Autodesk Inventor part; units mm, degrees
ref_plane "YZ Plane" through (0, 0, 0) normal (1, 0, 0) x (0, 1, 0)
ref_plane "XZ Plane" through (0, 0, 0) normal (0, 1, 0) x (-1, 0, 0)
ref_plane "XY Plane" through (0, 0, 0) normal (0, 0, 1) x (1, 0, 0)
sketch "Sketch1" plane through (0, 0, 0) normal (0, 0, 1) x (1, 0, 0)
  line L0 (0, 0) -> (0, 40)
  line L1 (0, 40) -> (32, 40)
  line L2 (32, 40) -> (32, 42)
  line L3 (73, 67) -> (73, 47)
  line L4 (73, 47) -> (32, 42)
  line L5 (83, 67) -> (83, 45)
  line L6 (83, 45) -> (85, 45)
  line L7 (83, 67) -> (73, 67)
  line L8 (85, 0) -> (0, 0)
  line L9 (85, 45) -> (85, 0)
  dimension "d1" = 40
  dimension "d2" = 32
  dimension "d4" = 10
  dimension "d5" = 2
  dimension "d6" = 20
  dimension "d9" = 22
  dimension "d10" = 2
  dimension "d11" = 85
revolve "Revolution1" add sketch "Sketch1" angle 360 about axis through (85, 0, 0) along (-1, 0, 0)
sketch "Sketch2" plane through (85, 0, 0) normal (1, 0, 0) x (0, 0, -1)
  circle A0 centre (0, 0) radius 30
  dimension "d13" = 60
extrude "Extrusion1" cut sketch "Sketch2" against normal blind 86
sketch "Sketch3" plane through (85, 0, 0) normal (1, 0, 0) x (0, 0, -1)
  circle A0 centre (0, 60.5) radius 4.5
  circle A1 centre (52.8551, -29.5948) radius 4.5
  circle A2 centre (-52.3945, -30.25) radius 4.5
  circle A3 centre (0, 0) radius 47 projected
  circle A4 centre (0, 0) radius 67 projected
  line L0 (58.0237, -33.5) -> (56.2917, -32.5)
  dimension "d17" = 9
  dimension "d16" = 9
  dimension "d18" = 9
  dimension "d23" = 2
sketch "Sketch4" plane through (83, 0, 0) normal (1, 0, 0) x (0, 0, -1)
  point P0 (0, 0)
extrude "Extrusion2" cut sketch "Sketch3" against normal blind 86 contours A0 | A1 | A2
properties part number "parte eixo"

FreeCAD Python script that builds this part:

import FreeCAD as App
import Part
import Sketcher

doc = App.newDocument("Part")
body = doc.addObject("PartDesign::Body", "Body")

# Sketch on XY plane
sketch1 = body.newObject("Sketcher::SketchObject", "Sketch")
sketch1.AttachmentSupport = (doc.getObject("XY_Plane"), [""])
sketch1.MapMode = "FlatFace"
sketch1.addGeometry(Part.LineSegment(App.Vector(0, 40, 0), App.Vector(0, 0, 0)), False)
sketch1.addGeometry(Part.LineSegment(App.Vector(0, 0, 0), App.Vector(85, 0, 0)), False)
sketch1.addGeometry(Part.LineSegment(App.Vector(85, 0, 0), App.Vector(85, 45, 0)), False)
sketch1.addGeometry(Part.LineSegment(App.Vector(85, 45, 0), App.Vector(83, 45, 0)), False)
sketch1.addGeometry(Part.LineSegment(App.Vector(83, 45, 0), App.Vector(83, 67, 0)), False)
sketch1.addGeometry(Part.LineSegment(App.Vector(83, 67, 0), App.Vector(73, 67, 0)), False)
sketch1.addGeometry(Part.LineSegment(App.Vector(73, 67, 0), App.Vector(73, 47, 0)), False)
sketch1.addGeometry(Part.LineSegment(App.Vector(73, 47, 0), App.Vector(32, 42, 0)), False)
sketch1.addGeometry(Part.LineSegment(App.Vector(32, 42, 0), App.Vector(32, 40, 0)), False)
sketch1.addGeometry(Part.LineSegment(App.Vector(32, 40, 0), App.Vector(0, 40, 0)), False)
sketch1.addConstraint(Sketcher.Constraint("Coincident", 0, 2, 1, 1))
sketch1.addConstraint(Sketcher.Constraint("Coincident", 1, 2, 2, 1))
sketch1.addConstraint(Sketcher.Constraint("Coincident", 2, 2, 3, 1))
sketch1.addConstraint(Sketcher.Constraint("Coincident", 3, 2, 4, 1))
sketch1.addConstraint(Sketcher.Constraint("Coincident", 4, 2, 5, 1))
sketch1.addConstraint(Sketcher.Constraint("Coincident", 5, 2, 6, 1))
sketch1.addConstraint(Sketcher.Constraint("Coincident", 6, 2, 7, 1))
sketch1.addConstraint(Sketcher.Constraint("Coincident", 7, 2, 8, 1))
sketch1.addConstraint(Sketcher.Constraint("Coincident", 8, 2, 9, 1))
sketch1.addConstraint(Sketcher.Constraint("Coincident", 9, 2, 0, 1))
sketch1.addConstraint(Sketcher.Constraint("Vertical", 0))
sketch1.addConstraint(Sketcher.Constraint("Horizontal", 1))
sketch1.addConstraint(Sketcher.Constraint("Vertical", 2))
sketch1.addConstraint(Sketcher.Constraint("Horizontal", 3))
sketch1.addConstraint(Sketcher.Constraint("Vertical", 4))
sketch1.addConstraint(Sketcher.Constraint("Horizontal", 5))
sketch1.addConstraint(Sketcher.Constraint("Vertical", 6))
sketch1.addConstraint(Sketcher.Constraint("Vertical", 8))
sketch1.addConstraint(Sketcher.Constraint("Horizontal", 9))
sketch1.addConstraint(Sketcher.Constraint("Coincident", 0, 2, -1, 1))
sketch1.addConstraint(Sketcher.Constraint("Equal", 3, 8))
sketch1.addConstraint(Sketcher.Constraint("DistanceX", 1, 1, 1, 2, 85.0))
sketch1.addConstraint(Sketcher.Constraint("DistanceX", 3, 2, 3, 1, 2.0))
sketch1.addConstraint(Sketcher.Constraint("DistanceX", 5, 2, 5, 1, 10.0))
sketch1.addConstraint(Sketcher.Constraint("DistanceX", 9, 2, 9, 1, 32.0))
sketch1.addConstraint(Sketcher.Constraint("DistanceY", 0, 2, 0, 1, 40.0))
sketch1.addConstraint(Sketcher.Constraint("DistanceY", 4, 1, 4, 2, 22.0))
sketch1.addConstraint(Sketcher.Constraint("DistanceY", 6, 2, 6, 1, 20.0))
sketch1.addConstraint(Sketcher.Constraint("DistanceY", 2, 1, 2, 2, 45.0))
revolution = body.newObject("PartDesign::Revolution", "Revolution")
revolution.Profile = sketch1
revolution.ReferenceAxis = (sketch1, ["H_Axis"])
revolution.Angle = 360

# Sketch on YZ plane
sketch2 = body.newObject("Sketcher::SketchObject", "Sketch001")
sketch2.AttachmentSupport = (doc.getObject("YZ_Plane"), [""])
sketch2.MapMode = "FlatFace"
sketch2.AttachmentOffset = App.Placement(App.Vector(0, 0, 85), App.Rotation())
sketch2.addGeometry(Part.Circle(App.Vector(0, 0, 0), App.Vector(0, 0, 1), 30), False)
sketch2.addConstraint(Sketcher.Constraint("Coincident", 0, 3, -1, 1))
sketch2.addConstraint(Sketcher.Constraint("Diameter", 0, 60.0))
pocket1 = body.newObject("PartDesign::Pocket", "Pocket")
pocket1.Profile = sketch2
pocket1.Length = 86

# Sketch on YZ plane
sketch3 = body.newObject("Sketcher::SketchObject", "Sketch002")
sketch3.AttachmentSupport = (doc.getObject("YZ_Plane"), [""])
sketch3.MapMode = "FlatFace"
sketch3.AttachmentOffset = App.Placement(App.Vector(0, 0, 85), App.Rotation())
sketch3.addGeometry(Part.Circle(App.Vector(60.5, 0, 0), App.Vector(0, 0, 1), 4.5), False)
sketch3.addGeometry(Part.Circle(App.Vector(-29.6, -52.9, 0), App.Vector(0, 0, 1), 4.5), False)
sketch3.addGeometry(Part.Circle(App.Vector(-30.2, 52.4, 0), App.Vector(0, 0, 1), 4.5), False)
sketch3.addConstraint(Sketcher.Constraint("Equal", 0, 1))
sketch3.addConstraint(Sketcher.Constraint("Equal", 1, 2))
sketch3.addConstraint(Sketcher.Constraint("PointOnObject", 0, 3, -1))
sketch3.addConstraint(Sketcher.Constraint("Diameter", 0, 9.0))
sketch3.addConstraint(Sketcher.Constraint("DistanceX", -1, 1, 0, 3, 60.5))
sketch3.addConstraint(Sketcher.Constraint("DistanceX", 2, 3, -1, 1, 30.25))
sketch3.addConstraint(Sketcher.Constraint("DistanceY", 1, 3, -1, 1, 52.855))
sketch3.addConstraint(Sketcher.Constraint("DistanceX", 1, 3, -1, 1, 29.5948))
sketch3.addConstraint(Sketcher.Constraint("DistanceY", -1, 1, 2, 3, 52.3945))
pocket2 = body.newObject("PartDesign::Pocket", "Pocket001")
pocket2.Profile = sketch3
pocket2.Length = 86

doc.recompute()
